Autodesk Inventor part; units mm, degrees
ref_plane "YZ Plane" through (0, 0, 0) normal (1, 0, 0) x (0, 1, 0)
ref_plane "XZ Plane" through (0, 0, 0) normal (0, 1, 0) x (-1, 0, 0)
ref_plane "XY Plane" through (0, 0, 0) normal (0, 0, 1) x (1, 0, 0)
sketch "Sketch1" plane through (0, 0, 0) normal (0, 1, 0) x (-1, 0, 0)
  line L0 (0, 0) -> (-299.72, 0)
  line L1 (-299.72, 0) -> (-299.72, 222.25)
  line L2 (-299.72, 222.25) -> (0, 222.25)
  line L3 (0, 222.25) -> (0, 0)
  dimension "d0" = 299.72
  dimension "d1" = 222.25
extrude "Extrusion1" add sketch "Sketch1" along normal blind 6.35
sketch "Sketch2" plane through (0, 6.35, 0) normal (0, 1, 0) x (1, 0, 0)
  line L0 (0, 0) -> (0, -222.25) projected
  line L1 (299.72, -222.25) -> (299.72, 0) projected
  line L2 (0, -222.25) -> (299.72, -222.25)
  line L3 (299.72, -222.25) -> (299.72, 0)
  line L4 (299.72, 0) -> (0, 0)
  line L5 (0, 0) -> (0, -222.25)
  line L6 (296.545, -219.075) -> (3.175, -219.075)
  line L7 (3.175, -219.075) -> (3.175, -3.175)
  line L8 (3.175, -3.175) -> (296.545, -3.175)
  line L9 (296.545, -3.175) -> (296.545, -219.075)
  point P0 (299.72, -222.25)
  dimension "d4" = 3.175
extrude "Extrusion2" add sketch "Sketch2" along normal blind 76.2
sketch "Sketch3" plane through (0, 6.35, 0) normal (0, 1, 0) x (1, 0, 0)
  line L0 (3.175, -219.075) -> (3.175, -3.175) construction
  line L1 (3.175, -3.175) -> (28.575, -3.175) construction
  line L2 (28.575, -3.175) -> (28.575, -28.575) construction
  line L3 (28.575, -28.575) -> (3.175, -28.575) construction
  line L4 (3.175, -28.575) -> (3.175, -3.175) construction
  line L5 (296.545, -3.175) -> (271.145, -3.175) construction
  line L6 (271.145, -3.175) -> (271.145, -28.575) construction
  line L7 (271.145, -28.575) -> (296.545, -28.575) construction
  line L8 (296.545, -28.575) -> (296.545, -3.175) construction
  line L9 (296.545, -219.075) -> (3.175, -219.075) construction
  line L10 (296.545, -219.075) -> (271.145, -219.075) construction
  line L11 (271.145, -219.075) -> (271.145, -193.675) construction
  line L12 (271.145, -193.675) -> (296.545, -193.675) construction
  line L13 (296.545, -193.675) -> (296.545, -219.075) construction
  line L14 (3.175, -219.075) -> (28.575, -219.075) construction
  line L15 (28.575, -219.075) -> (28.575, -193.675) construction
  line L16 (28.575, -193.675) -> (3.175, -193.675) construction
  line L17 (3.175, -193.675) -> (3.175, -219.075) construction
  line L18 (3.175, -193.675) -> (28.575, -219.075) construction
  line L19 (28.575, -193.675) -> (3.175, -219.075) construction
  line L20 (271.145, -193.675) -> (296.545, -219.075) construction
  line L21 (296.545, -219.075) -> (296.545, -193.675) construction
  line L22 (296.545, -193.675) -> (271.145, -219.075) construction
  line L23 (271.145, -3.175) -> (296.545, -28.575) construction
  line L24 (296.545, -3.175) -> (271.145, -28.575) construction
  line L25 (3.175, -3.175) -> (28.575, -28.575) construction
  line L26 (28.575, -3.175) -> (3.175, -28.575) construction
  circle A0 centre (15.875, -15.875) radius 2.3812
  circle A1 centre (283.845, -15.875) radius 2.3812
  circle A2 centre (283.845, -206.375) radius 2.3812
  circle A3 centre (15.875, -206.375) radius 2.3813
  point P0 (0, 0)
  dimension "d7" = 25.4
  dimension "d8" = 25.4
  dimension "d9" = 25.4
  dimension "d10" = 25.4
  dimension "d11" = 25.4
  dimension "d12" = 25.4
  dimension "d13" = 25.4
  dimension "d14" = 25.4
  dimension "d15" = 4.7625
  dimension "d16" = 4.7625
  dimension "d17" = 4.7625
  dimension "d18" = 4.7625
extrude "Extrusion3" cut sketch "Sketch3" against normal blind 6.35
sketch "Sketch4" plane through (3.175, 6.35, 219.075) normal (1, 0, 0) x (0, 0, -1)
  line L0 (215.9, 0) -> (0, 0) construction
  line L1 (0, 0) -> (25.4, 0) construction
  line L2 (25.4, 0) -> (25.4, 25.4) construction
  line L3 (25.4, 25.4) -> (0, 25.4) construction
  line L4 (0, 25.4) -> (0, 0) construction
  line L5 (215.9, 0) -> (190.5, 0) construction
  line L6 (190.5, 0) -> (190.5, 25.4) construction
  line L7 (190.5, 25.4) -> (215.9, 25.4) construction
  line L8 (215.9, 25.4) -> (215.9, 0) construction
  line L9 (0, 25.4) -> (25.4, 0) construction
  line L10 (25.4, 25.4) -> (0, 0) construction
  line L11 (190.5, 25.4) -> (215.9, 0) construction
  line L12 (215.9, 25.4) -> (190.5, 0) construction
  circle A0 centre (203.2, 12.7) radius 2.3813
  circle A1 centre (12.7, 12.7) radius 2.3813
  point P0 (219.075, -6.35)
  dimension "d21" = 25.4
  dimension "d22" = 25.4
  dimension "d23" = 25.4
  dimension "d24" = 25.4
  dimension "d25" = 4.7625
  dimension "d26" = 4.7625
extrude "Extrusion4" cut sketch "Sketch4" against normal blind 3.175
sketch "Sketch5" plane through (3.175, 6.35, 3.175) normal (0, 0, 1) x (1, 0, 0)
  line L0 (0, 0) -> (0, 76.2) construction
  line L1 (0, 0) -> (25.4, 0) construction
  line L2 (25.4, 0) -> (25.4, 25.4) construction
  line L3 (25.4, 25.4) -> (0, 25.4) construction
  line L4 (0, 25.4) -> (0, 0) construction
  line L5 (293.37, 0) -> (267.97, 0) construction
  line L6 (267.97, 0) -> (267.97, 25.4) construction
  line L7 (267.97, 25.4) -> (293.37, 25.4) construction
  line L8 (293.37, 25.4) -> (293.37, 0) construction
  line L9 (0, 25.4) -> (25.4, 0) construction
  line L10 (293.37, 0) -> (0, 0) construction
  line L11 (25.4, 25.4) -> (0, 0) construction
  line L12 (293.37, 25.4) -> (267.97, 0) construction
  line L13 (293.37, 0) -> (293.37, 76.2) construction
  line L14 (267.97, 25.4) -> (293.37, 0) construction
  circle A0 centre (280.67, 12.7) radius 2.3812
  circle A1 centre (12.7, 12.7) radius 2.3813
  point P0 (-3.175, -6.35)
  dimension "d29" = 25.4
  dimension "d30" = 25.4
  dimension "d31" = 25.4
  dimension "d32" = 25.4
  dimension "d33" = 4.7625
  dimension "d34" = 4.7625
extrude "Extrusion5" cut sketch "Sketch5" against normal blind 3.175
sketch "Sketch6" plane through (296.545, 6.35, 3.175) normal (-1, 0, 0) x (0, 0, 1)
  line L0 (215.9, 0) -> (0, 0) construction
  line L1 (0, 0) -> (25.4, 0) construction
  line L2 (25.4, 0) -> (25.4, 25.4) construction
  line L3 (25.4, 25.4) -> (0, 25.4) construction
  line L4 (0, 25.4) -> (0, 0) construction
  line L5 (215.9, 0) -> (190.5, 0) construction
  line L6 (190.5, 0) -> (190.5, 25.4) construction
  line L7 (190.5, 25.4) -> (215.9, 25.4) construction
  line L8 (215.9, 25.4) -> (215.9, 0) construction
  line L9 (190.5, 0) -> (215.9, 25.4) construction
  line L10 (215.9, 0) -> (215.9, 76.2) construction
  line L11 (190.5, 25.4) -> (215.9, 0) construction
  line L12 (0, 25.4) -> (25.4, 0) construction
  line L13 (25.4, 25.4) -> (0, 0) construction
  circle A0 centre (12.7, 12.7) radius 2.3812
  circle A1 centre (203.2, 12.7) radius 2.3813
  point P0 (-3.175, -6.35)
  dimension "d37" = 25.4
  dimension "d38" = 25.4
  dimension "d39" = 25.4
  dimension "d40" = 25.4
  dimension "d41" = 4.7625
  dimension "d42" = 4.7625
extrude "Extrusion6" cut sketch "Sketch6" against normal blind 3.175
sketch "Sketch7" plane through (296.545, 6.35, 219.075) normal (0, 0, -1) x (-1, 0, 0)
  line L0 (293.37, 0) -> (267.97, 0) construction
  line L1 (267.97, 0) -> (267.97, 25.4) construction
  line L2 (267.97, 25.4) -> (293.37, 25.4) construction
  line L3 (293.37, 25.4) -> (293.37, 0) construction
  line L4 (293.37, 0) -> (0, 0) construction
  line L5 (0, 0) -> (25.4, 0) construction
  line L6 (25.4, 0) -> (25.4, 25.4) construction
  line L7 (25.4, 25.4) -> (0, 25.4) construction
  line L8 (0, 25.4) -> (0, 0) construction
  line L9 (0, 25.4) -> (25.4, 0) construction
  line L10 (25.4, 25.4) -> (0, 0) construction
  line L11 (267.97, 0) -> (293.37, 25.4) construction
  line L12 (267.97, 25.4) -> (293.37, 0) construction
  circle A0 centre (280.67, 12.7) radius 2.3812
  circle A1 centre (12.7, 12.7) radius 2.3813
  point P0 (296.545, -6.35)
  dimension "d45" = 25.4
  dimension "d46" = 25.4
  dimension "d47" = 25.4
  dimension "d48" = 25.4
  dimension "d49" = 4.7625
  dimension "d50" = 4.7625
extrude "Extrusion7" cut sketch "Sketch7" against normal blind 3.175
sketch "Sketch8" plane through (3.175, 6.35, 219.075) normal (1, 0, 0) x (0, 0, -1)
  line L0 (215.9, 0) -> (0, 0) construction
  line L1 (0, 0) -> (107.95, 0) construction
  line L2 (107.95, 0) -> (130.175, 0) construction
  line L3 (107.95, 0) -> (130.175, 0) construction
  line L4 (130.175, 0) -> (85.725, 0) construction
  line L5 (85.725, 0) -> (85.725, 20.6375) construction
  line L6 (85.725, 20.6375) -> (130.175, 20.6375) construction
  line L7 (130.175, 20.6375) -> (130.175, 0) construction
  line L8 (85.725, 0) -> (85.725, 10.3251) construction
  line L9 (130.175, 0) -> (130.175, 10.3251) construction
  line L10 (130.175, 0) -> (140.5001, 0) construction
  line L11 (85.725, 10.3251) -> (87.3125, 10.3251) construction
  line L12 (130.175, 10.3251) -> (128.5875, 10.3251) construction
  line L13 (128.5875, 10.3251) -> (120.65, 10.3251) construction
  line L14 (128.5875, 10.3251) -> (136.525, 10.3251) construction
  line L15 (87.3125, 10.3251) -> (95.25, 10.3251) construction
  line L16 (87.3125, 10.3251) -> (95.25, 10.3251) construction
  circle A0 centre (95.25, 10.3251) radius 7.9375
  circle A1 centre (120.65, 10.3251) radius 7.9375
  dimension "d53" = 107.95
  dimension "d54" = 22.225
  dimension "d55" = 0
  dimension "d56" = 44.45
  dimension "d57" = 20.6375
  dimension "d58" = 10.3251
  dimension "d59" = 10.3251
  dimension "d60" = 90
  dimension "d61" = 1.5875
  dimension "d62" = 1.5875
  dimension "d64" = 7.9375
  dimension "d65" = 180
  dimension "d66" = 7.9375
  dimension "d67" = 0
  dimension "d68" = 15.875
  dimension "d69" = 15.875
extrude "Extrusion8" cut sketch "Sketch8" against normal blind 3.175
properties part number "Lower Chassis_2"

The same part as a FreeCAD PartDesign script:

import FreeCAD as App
import Part
import Sketcher
Q = App.Units.Quantity


def add_polygon(sketch, points):
    """Adds a closed chain of lines whose ends are joined by coincident constraints."""
    first, n = sketch.GeometryCount, len(points)
    for a, b in zip(points, points[1:] + points[:1]):
        sketch.addGeometry(Part.LineSegment(App.Vector(*a, 0), App.Vector(*b, 0)), False)
    for i in range(n):
        sketch.addConstraint(Sketcher.Constraint("Coincident", first + i, 2, first + (i + 1) % n, 1))

doc = App.newDocument("Part")
body = doc.addObject("PartDesign::Body", "Body")

sketch1 = doc.addObject("Sketcher::SketchObject", "Sketch")
body.addObject(sketch1)
sketch1.AttachmentSupport = (doc.XZ_Plane, [""])
sketch1.MapMode = "FlatFace"
add_polygon(sketch1, [(300, 0), (0, 0), (0, 222), (300, 222)])
sketch1.addConstraint(Sketcher.Constraint("Horizontal", 0))
sketch1.addConstraint(Sketcher.Constraint("Vertical", 1))
sketch1.addConstraint(Sketcher.Constraint("Horizontal", 2))
sketch1.addConstraint(Sketcher.Constraint("Vertical", 3))
sketch1.addConstraint(Sketcher.Constraint("Coincident", 0, 2, -1, 1))
sketch1.addConstraint(Sketcher.Constraint("DistanceX", 0, 2, 0, 1, Q("11.8 in")))
sketch1.addConstraint(Sketcher.Constraint("DistanceY", 1, 1, 1, 2, Q("8.75 in")))
pad1 = doc.addObject("PartDesign::Pad", "Pad")
body.addObject(pad1)
pad1.Profile = sketch1
pad1.Length = Q("0.25 in")
pad1.Reversed = True

sketch2 = doc.addObject("Sketcher::SketchObject", "Sketch001")
body.addObject(sketch2)
sketch2.AttachmentSupport = (doc.XZ_Plane, [""])
sketch2.MapMode = "FlatFace"
sketch2.AttachmentOffset = App.Placement(App.Vector(0, 0, -0.25 * 25.4), App.Rotation())
add_polygon(sketch2, [(300, 0), (0, 0), (0, 222), (300, 222)])
add_polygon(sketch2, [(297, 3), (297, 219), (3, 219), (3, 3)])
sketch2.addConstraint(Sketcher.Constraint("Horizontal", 0))
sketch2.addConstraint(Sketcher.Constraint("Vertical", 1))
sketch2.addConstraint(Sketcher.Constraint("Horizontal", 2))
sketch2.addConstraint(Sketcher.Constraint("Vertical", 3))
sketch2.addConstraint(Sketcher.Constraint("Vertical", 4))
sketch2.addConstraint(Sketcher.Constraint("Horizontal", 5))
sketch2.addConstraint(Sketcher.Constraint("Vertical", 6))
sketch2.addConstraint(Sketcher.Constraint("Horizontal", 7))
sketch2.addConstraint(Sketcher.Constraint("Coincident", 0, 2, -1, 1))
sketch2.addConstraint(Sketcher.Constraint("DistanceX", 0, 2, 0, 1, Q("11.8 in")))
sketch2.addConstraint(Sketcher.Constraint("DistanceY", 4, 1, 4, 2, Q("8.5 in")))
sketch2.addConstraint(Sketcher.Constraint("DistanceX", -1, 1, 5, 2, Q("0.125 in")))
sketch2.addConstraint(Sketcher.Constraint("DistanceY", -1, 1, 6, 2, Q("0.125 in")))
sketch2.addConstraint(Sketcher.Constraint("DistanceX", 4, 2, 2, 2, Q("0.125 in")))
sketch2.addConstraint(Sketcher.Constraint("DistanceY", 4, 2, 2, 2, Q("0.125 in")))
pad2 = doc.addObject("PartDesign::Pad", "Pad001")
body.addObject(pad2)
pad2.Profile = sketch2
pad2.Length = Q("3 in")
pad2.Reversed = True

sketch3 = doc.addObject("Sketcher::SketchObject", "Sketch002")
body.addObject(sketch3)
sketch3.AttachmentSupport = (doc.XZ_Plane, [""])
sketch3.MapMode = "FlatFace"
sketch3.AttachmentOffset = App.Placement(App.Vector(0, 0, -0.25 * 25.4), App.Rotation())
sketch3.addGeometry(Part.Circle(App.Vector(15.9, 15.9, 0), App.Vector(0, 0, 1), 2.4), False)
sketch3.addGeometry(Part.Circle(App.Vector(283.8, 15.9, 0), App.Vector(0, 0, 1), 2.4), False)
sketch3.addGeometry(Part.Circle(App.Vector(283.8, 206.4, 0), App.Vector(0, 0, 1), 2.4), False)
sketch3.addGeometry(Part.Circle(App.Vector(15.9, 206.4, 0), App.Vector(0, 0, 1), 2.4), False)
sketch3.addConstraint(Sketcher.Constraint("Equal", 0, 1))
sketch3.addConstraint(Sketcher.Constraint("Equal", 1, 2))
sketch3.addConstraint(Sketcher.Constraint("Equal", 2, 3))
sketch3.addConstraint(Sketcher.Constraint("Horizontal", 0, 3, 1, 3))
sketch3.addConstraint(Sketcher.Constraint("Horizontal", 2, 3, 3, 3))
sketch3.addConstraint(Sketcher.Constraint("Vertical", 1, 3, 2, 3))
sketch3.addConstraint(Sketcher.Constraint("Vertical", 0, 3, 3, 3))
sketch3.addConstraint(Sketcher.Constraint("Diameter", 0, Q("0.1875 in")))
sketch3.addConstraint(Sketcher.Constraint("DistanceY", 1, 3, 2, 3, Q("7.5 in")))
sketch3.addConstraint(Sketcher.Constraint("DistanceX", 0, 3, 1, 3, Q("10.55 in")))
sketch3.addConstraint(Sketcher.Constraint("DistanceX", -1, 1, 0, 3, Q("0.625 in")))
sketch3.addConstraint(Sketcher.Constraint("DistanceY", -1, 1, 0, 3, Q("0.625 in")))
pocket1 = doc.addObject("PartDesign::Pocket", "Pocket")
body.addObject(pocket1)
pocket1.Profile = sketch3
pocket1.Length = Q("0.25 in")
pocket1.Reversed = True

sketch4 = doc.addObject("Sketcher::SketchObject", "Sketch003")
body.addObject(sketch4)
sketch4.AttachmentSupport = (doc.YZ_Plane, [""])
sketch4.MapMode = "FlatFace"
sketch4.AttachmentOffset = App.Placement(App.Vector(0, 0, 0.125 * 25.4), App.Rotation())
sketch4.addGeometry(Part.Circle(App.Vector(19.1, 15.9, 0), App.Vector(0, 0, 1), 2.4), False)
sketch4.addGeometry(Part.Circle(App.Vector(19.1, 206.4, 0), App.Vector(0, 0, 1), 2.4), False)
sketch4.addConstraint(Sketcher.Constraint("Equal", 0, 1))
sketch4.addConstraint(Sketcher.Constraint("Vertical", 0, 3, 1, 3))
sketch4.addConstraint(Sketcher.Constraint("Diameter", 0, Q("0.1875 in")))
sketch4.addConstraint(Sketcher.Constraint("DistanceY", 0, 3, 1, 3, Q("7.5 in")))
sketch4.addConstraint(Sketcher.Constraint("DistanceX", -1, 1, 0, 3, Q("0.75 in")))
sketch4.addConstraint(Sketcher.Constraint("DistanceY", -1, 1, 0, 3, Q("0.625 in")))
pocket2 = doc.addObject("PartDesign::Pocket", "Pocket001")
body.addObject(pocket2)
pocket2.Profile = sketch4
pocket2.Length = Q("0.125 in")

sketch5 = doc.addObject("Sketcher::SketchObject", "Sketch004")
body.addObject(sketch5)
sketch5.AttachmentSupport = (doc.XY_Plane, [""])
sketch5.MapMode = "FlatFace"
sketch5.AttachmentOffset = App.Placement(App.Vector(0, 0, 0.125 * 25.4), App.Rotation())
sketch5.addGeometry(Part.Circle(App.Vector(283.8, 19.1, 0), App.Vector(0, 0, 1), 2.4), False)
sketch5.addGeometry(Part.Circle(App.Vector(15.9, 19.1, 0), App.Vector(0, 0, 1), 2.4), False)
sketch5.addConstraint(Sketcher.Constraint("Equal", 0, 1))
sketch5.addConstraint(Sketcher.Constraint("Horizontal", 0, 3, 1, 3))
sketch5.addConstraint(Sketcher.Constraint("Diameter", 0, Q("0.1875 in")))
sketch5.addConstraint(Sketcher.Constraint("DistanceY", -1, 1, 0, 3, Q("0.75 in")))
sketch5.addConstraint(Sketcher.Constraint("DistanceX", 1, 3, 0, 3, Q("10.55 in")))
sketch5.addConstraint(Sketcher.Constraint("DistanceX", -1, 1, 0, 3, Q("11.175 in")))
pocket3 = doc.addObject("PartDesign::Pocket", "Pocket002")
body.addObject(pocket3)
pocket3.Profile = sketch5
pocket3.Length = Q("0.125 in")

sketch6 = doc.addObject("Sketcher::SketchObject", "Sketch005")
body.addObject(sketch6)
sketch6.AttachmentSupport = (doc.YZ_Plane, [""])
sketch6.MapMode = "FlatFace"
sketch6.AttachmentOffset = App.Placement(App.Vector(0, 0, 11.675 * 25.4), App.Rotation())
sketch6.addGeometry(Part.Circle(App.Vector(19.1, 15.9, 0), App.Vector(0, 0, 1), 2.4), False)
sketch6.addGeometry(Part.Circle(App.Vector(19.1, 206.4, 0), App.Vector(0, 0, 1), 2.4), False)
sketch6.addConstraint(Sketcher.Constraint("Equal", 0, 1))
sketch6.addConstraint(Sketcher.Constraint("Vertical", 0, 3, 1, 3))
sketch6.addConstraint(Sketcher.Constraint("Diameter", 0, Q("0.1875 in")))
sketch6.addConstraint(Sketcher.Constraint("DistanceY", 0, 3, 1, 3, Q("7.5 in")))
sketch6.addConstraint(Sketcher.Constraint("DistanceX", -1, 1, 0, 3, Q("0.75 in")))
sketch6.addConstraint(Sketcher.Constraint("DistanceY", -1, 1, 0, 3, Q("0.625 in")))
pocket4 = doc.addObject("PartDesign::Pocket", "Pocket003")
body.addObject(pocket4)
pocket4.Profile = sketch6
pocket4.Length = Q("0.125 in")
pocket4.Reversed = True

sketch7 = doc.addObject("Sketcher::SketchObject", "Sketch006")
body.addObject(sketch7)
sketch7.AttachmentSupport = (doc.XY_Plane, [""])
sketch7.MapMode = "FlatFace"
sketch7.AttachmentOffset = App.Placement(App.Vector(0, 0, 8.625 * 25.4), App.Rotation())
sketch7.addGeometry(Part.Circle(App.Vector(15.9, 19.1, 0), App.Vector(0, 0, 1), 2.4), False)
sketch7.addGeometry(Part.Circle(App.Vector(283.8, 19.1, 0), App.Vector(0, 0, 1), 2.4), False)
sketch7.addConstraint(Sketcher.Constraint("Equal", 0, 1))
sketch7.addConstraint(Sketcher.Constraint("Horizontal", 0, 3, 1, 3))
sketch7.addConstraint(Sketcher.Constraint("Diameter", 0, Q("0.1875 in")))
sketch7.addConstraint(Sketcher.Constraint("DistanceY", -1, 1, 0, 3, Q("0.75 in")))
sketch7.addConstraint(Sketcher.Constraint("DistanceX", 0, 3, 1, 3, Q("10.55 in")))
sketch7.addConstraint(Sketcher.Constraint("DistanceX", -1, 1, 0, 3, Q("0.625 in")))
pocket5 = doc.addObject("PartDesign::Pocket", "Pocket004")
body.addObject(pocket5)
pocket5.Profile = sketch7
pocket5.Length = Q("0.125 in")
pocket5.Reversed = True

sketch8 = doc.addObject("Sketcher::SketchObject", "Sketch007")
body.addObject(sketch8)
sketch8.AttachmentSupport = (doc.YZ_Plane, [""])
sketch8.MapMode = "FlatFace"
sketch8.AttachmentOffset = App.Placement(App.Vector(0, 0, 0.125 * 25.4), App.Rotation())
sketch8.addGeometry(Part.Circle(App.Vector(17, 124, 0), App.Vector(0, 0, 1), 8), False)
sketch8.addGeometry(Part.Circle(App.Vector(17, 98, 0), App.Vector(0, 0, 1), 8), False)
sketch8.addConstraint(Sketcher.Constraint("Equal", 0, 1))
sketch8.addConstraint(Sketcher.Constraint("Vertical", 0, 3, 1, 3))
sketch8.addConstraint(Sketcher.Constraint("Diameter", 0, Q("0.625 in")))
sketch8.addConstraint(Sketcher.Constraint("DistanceY", 1, 3, 0, 3, Q("1 in")))
sketch8.addConstraint(Sketcher.Constraint("DistanceY", -1, 1, 0, 3, Q("4.875 in")))
sketch8.addConstraint(Sketcher.Constraint("DistanceX", -1, 1, 0, 3, Q("0.6565 in")))
pocket6 = doc.addObject("PartDesign::Pocket", "Pocket005")
body.addObject(pocket6)
pocket6.Profile = sketch8
pocket6.Length = Q("0.125 in")

doc.recompute()
